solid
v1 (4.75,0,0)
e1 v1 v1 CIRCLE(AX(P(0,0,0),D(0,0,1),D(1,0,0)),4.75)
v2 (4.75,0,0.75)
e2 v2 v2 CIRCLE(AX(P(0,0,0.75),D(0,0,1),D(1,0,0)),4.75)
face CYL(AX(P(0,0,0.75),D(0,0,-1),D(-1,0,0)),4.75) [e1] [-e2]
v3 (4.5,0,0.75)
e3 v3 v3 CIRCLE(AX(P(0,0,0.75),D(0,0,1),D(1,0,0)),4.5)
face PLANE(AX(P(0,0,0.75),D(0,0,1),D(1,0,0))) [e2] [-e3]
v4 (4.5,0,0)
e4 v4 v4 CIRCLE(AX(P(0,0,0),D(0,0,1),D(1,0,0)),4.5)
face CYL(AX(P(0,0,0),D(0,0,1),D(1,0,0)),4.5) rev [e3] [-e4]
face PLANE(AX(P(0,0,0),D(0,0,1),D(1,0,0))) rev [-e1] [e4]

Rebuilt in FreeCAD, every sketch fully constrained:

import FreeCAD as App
import Part
import Sketcher

V = App.Vector

doc = App.newDocument("Part")
body = doc.addObject("PartDesign::Body", "Body")

# Sketch on XY plane
sketch1 = body.newObject("Sketcher::SketchObject", "Sketch")
sketch1.AttachmentSupport = (doc.getObject("XY_Plane"), [""])
sketch1.MapMode = "FlatFace"
sketch1.addGeometry(Part.Circle(V(0, 0, 0), V(0, 0, 1), 4.8), False)
sketch1.addConstraint(Sketcher.Constraint("Coincident", 0, 3, -1, 1))
sketch1.addConstraint(Sketcher.Constraint("Diameter", 0, 9.5))
pad1 = body.newObject("PartDesign::Pad", "Pad")
pad1.Profile = sketch1
pad1.Length = 0.75

# Sketch on XY plane
sketch2 = body.newObject("Sketcher::SketchObject", "Sketch001")
sketch2.AttachmentSupport = (doc.getObject("XY_Plane"), [""])
sketch2.MapMode = "FlatFace"
sketch2.AttachmentOffset = App.Placement(V(0, 0, 0.75), App.Rotation())
sketch2.addGeometry(Part.Circle(V(0, 0, 0), V(0, 0, 1), 4.5), False)
sketch2.addConstraint(Sketcher.Constraint("Coincident", 0, 3, -1, 1))
sketch2.addConstraint(Sketcher.Constraint("Diameter", 0, 9.0))
pocket1 = body.newObject("PartDesign::Pocket", "Pocket")
pocket1.Profile = sketch2
pocket1.Length = 0.75

doc.recompute()
